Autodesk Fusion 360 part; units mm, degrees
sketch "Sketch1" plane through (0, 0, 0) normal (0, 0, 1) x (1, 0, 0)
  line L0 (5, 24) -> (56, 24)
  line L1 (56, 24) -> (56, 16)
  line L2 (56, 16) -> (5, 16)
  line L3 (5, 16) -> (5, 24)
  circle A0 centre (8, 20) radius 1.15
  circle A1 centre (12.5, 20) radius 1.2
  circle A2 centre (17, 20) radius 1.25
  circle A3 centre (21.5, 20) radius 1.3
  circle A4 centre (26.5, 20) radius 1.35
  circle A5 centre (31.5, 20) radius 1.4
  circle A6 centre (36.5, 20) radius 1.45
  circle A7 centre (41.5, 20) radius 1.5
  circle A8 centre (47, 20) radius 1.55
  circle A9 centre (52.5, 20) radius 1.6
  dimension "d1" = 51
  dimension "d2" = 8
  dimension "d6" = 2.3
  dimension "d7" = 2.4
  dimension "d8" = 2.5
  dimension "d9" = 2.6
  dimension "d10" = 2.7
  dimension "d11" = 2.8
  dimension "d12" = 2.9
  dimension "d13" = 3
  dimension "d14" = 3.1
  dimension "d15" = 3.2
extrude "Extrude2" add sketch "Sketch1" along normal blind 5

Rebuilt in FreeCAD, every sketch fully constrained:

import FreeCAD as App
import Part
import Sketcher
Q = App.Units.Quantity


def add_polygon(sketch, points):
    """Adds a closed chain of lines whose ends are joined by coincident constraints."""
    first, n = sketch.GeometryCount, len(points)
    for a, b in zip(points, points[1:] + points[:1]):
        sketch.addGeometry(Part.LineSegment(App.Vector(*a, 0), App.Vector(*b, 0)), False)
    for i in range(n):
        sketch.addConstraint(Sketcher.Constraint("Coincident", first + i, 2, first + (i + 1) % n, 1))

doc = App.newDocument("Part")
body = doc.addObject("PartDesign::Body", "Body")

sketch1 = body.newObject("Sketcher::SketchObject", "Sketch")
sketch1.AttachmentSupport = (doc.getObject("XY_Plane"), [""])
sketch1.MapMode = "FlatFace"
add_polygon(sketch1, [(56, 24), (5, 24), (5, 16), (56, 16)])
sketch1.addGeometry(Part.Circle(App.Vector(8, 20, 0), App.Vector(0, 0, 1), 1.15), False)
sketch1.addGeometry(Part.Circle(App.Vector(12.5, 20, 0), App.Vector(0, 0, 1), 1.2), False)
sketch1.addGeometry(Part.Circle(App.Vector(17, 20, 0), App.Vector(0, 0, 1), 1.25), False)
sketch1.addGeometry(Part.Circle(App.Vector(21.5, 20, 0), App.Vector(0, 0, 1), 1.3), False)
sketch1.addGeometry(Part.Circle(App.Vector(26.5, 20, 0), App.Vector(0, 0, 1), 1.35), False)
sketch1.addGeometry(Part.Circle(App.Vector(31.5, 20, 0), App.Vector(0, 0, 1), 1.4), False)
sketch1.addGeometry(Part.Circle(App.Vector(36.5, 20, 0), App.Vector(0, 0, 1), 1.45), False)
sketch1.addGeometry(Part.Circle(App.Vector(41.5, 20, 0), App.Vector(0, 0, 1), 1.5), False)
sketch1.addGeometry(Part.Circle(App.Vector(47, 20, 0), App.Vector(0, 0, 1), 1.55), False)
sketch1.addGeometry(Part.Circle(App.Vector(52.5, 20, 0), App.Vector(0, 0, 1), 1.6), False)
sketch1.addConstraint([
    Sketcher.Constraint("Horizontal", 0),
    Sketcher.Constraint("Vertical", 1),
    Sketcher.Constraint("Horizontal", 2),
    Sketcher.Constraint("Vertical", 3),
    Sketcher.Constraint("Horizontal", 4, 3, 5, 3),
    Sketcher.Constraint("Horizontal", 5, 3, 6, 3),
    Sketcher.Constraint("Horizontal", 6, 3, 7, 3),
    Sketcher.Constraint("Horizontal", 7, 3, 8, 3),
    Sketcher.Constraint("Horizontal", 8, 3, 9, 3),
    Sketcher.Constraint("Horizontal", 9, 3, 10, 3),
    Sketcher.Constraint("Horizontal", 10, 3, 11, 3),
    Sketcher.Constraint("Horizontal", 11, 3, 12, 3),
    Sketcher.Constraint("Horizontal", 12, 3, 13, 3),
    Sketcher.Constraint("Diameter", 11, Q("3 mm")),
    Sketcher.Constraint("Diameter", 4, Q("2.3 mm")),
    Sketcher.Constraint("Diameter", 5, Q("2.4 mm")),
    Sketcher.Constraint("Diameter", 6, Q("2.5 mm")),
    Sketcher.Constraint("Diameter", 7, Q("2.6 mm")),
    Sketcher.Constraint("Diameter", 8, Q("2.7 mm")),
    Sketcher.Constraint("Diameter", 9, Q("2.8 mm")),
    Sketcher.Constraint("Diameter", 10, Q("2.9 mm")),
    Sketcher.Constraint("Diameter", 12, Q("3.1 mm")),
    Sketcher.Constraint("Diameter", 13, Q("3.2 mm")),
    Sketcher.Constraint("DistanceX", 0, 2, 0, 1, Q("51 mm")),
    Sketcher.Constraint("DistanceY", 1, 2, 1, 1, Q("8 mm")),
    Sketcher.Constraint("DistanceX", -1, 1, 4, 3, Q("8 mm")),
    Sketcher.Constraint("DistanceX", 0, 2, 4, 3, Q("3 mm")),
    Sketcher.Constraint("DistanceY", -1, 1, 4, 3, Q("20 mm")),
    Sketcher.Constraint("DistanceX", -1, 1, 6, 3, Q("17 mm")),
    Sketcher.Constraint("DistanceX", -1, 1, 12, 3, Q("47 mm")),
    Sketcher.Constraint("DistanceY", -1, 1, 0, 2, Q("24 mm")),
    Sketcher.Constraint("DistanceX", 5, 3, 7, 3, Q("9 mm")),
    Sketcher.Constraint("DistanceX", 7, 3, 8, 3, Q("5 mm")),
    Sketcher.Constraint("DistanceX", 8, 3, 9, 3, Q("5 mm")),
    Sketcher.Constraint("DistanceX", 9, 3, 10, 3, Q("5 mm")),
    Sketcher.Constraint("DistanceX", 10, 3, 11, 3, Q("5 mm")),
    Sketcher.Constraint("DistanceX", 11, 3, 13, 3, Q("11 mm")),
    Sketcher.Constraint("DistanceX", -1, 1, 5, 3, Q("12.5 mm")),
])
pad1 = body.newObject("PartDesign::Pad", "Pad")
pad1.Profile = sketch1
pad1.Length = 5

doc.recompute()
